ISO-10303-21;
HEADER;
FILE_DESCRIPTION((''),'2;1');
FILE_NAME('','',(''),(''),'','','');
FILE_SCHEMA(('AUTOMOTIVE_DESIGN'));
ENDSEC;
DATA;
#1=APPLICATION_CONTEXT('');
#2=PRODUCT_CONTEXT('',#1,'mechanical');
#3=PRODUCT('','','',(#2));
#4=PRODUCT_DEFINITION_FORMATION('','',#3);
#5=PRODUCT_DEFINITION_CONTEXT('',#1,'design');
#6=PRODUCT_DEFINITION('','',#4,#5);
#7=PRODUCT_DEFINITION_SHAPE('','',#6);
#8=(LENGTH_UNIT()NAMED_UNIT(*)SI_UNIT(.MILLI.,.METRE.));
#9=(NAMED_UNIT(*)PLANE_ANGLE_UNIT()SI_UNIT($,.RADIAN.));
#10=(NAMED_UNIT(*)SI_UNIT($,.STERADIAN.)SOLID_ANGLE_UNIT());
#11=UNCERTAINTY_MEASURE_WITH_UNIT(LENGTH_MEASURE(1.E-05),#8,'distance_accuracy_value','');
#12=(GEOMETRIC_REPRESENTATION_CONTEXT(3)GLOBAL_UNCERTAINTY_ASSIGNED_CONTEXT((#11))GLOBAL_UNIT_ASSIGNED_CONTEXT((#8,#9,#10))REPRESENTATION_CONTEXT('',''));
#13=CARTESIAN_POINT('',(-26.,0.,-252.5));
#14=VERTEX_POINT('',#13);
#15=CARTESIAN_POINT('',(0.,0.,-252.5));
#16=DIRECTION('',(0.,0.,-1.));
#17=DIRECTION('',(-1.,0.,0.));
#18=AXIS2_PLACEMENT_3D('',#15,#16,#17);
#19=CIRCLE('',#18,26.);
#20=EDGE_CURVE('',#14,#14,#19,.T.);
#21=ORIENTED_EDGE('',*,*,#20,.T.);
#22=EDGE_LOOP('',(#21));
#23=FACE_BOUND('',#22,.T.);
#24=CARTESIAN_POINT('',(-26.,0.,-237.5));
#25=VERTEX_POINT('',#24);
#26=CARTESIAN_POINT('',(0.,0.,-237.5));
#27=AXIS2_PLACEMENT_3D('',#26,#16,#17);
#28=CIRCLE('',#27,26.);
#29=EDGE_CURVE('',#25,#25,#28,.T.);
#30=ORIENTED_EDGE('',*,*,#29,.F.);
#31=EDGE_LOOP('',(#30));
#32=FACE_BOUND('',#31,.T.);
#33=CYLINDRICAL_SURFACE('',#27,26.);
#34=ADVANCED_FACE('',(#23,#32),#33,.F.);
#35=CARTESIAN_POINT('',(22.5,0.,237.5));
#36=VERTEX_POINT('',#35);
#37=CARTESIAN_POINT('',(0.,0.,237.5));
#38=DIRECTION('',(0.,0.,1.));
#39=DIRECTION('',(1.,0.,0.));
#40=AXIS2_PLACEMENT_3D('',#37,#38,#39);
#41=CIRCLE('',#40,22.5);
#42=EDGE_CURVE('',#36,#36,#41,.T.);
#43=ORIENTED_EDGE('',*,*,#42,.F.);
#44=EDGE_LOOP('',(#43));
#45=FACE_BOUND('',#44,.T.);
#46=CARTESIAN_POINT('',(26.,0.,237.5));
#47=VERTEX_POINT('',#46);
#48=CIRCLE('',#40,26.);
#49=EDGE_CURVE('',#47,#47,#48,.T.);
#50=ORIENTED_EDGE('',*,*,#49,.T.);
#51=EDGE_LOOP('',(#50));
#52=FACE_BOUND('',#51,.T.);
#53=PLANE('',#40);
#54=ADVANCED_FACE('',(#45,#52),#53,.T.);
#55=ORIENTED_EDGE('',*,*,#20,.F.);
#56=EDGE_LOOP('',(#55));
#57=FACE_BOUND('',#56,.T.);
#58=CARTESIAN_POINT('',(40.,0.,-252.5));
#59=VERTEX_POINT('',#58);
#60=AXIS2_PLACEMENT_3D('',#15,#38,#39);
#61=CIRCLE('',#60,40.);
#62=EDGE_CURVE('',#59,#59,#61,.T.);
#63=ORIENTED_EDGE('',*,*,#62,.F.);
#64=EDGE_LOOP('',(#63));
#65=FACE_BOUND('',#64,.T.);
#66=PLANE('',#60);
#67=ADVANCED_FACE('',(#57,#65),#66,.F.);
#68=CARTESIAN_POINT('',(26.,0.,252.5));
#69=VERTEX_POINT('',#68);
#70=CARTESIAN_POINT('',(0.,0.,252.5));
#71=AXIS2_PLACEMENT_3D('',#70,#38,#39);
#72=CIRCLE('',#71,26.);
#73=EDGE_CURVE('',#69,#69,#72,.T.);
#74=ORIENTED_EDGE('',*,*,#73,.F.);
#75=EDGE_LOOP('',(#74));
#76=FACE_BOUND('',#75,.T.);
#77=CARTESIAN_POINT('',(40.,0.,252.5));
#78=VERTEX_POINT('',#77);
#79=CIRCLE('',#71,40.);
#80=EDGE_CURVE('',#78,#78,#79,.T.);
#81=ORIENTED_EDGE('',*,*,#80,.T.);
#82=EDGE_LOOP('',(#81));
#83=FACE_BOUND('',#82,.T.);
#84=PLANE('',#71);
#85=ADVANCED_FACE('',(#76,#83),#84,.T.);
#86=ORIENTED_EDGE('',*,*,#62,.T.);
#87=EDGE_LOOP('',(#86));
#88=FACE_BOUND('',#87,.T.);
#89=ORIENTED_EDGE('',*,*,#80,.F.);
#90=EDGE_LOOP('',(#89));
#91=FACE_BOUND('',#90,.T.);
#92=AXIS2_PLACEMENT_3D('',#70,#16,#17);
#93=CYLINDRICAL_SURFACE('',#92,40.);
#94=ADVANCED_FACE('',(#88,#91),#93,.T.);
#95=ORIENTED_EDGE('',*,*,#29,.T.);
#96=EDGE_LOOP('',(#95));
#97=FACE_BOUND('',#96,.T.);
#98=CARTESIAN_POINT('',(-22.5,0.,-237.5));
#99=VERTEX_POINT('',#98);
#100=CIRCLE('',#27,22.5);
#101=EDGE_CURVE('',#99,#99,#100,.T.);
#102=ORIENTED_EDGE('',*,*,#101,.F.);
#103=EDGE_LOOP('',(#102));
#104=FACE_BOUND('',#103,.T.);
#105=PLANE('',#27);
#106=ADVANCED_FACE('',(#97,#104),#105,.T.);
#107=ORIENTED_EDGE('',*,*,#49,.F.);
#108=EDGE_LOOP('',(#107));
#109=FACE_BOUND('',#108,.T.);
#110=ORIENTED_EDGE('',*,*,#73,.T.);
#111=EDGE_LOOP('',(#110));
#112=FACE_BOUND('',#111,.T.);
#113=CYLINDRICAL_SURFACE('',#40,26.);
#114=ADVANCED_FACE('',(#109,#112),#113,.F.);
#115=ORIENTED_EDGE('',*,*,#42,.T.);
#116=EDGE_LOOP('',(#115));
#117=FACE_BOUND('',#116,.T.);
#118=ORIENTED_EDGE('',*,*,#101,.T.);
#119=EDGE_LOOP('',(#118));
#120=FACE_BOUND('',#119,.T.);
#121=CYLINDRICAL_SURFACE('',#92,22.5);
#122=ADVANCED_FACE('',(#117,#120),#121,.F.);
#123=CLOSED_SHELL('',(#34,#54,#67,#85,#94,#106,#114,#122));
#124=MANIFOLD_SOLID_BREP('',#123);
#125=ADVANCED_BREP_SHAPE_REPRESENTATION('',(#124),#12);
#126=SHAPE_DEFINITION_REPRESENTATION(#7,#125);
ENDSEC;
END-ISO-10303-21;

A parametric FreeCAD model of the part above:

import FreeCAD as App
import Part
import Sketcher
from FreeCAD import Vector

doc = App.newDocument("Part")
body = doc.addObject("PartDesign::Body", "Body")

# Sketch on XY plane
sketch1 = doc.addObject("Sketcher::SketchObject", "Sketch")
body.addObject(sketch1)
sketch1.AttachmentSupport = (doc.XY_Plane, [""])
sketch1.MapMode = "FlatFace"
sketch1.addGeometry([
    Part.Circle(Vector(0, 0, 0), Vector(0, 0, 1), 40),
    Part.Circle(Vector(0, 0, 0), Vector(0, 0, 1), 22),
], False)
sketch1.addConstraint([
    Sketcher.Constraint("Coincident", 0, 3, -1, 1),
    Sketcher.Constraint("Coincident", 1, 3, -1, 1),
    Sketcher.Constraint("Diameter", 0, 80.0),
    Sketcher.Constraint("Diameter", 1, 45.0),
])
pad1 = doc.addObject("PartDesign::Pad", "Pad")
body.addObject(pad1)
pad1.Profile = sketch1
pad1.Length = 505
pad1.Midplane = True

# Sketch on XY plane
sketch2 = doc.addObject("Sketcher::SketchObject", "Sketch001")
body.addObject(sketch2)
sketch2.AttachmentSupport = (doc.XY_Plane, [""])
sketch2.MapMode = "FlatFace"
sketch2.AttachmentOffset = App.Placement(Vector(0, 0, 237.5), App.Rotation())
sketch2.addGeometry([
    Part.Circle(Vector(0, 0, 0), Vector(0, 0, 1), 26),
    Part.Circle(Vector(0, 0, 0), Vector(0, 0, 1), 22),
], False)
sketch2.addConstraint([
    Sketcher.Constraint("Coincident", 0, 3, -1, 1),
    Sketcher.Constraint("Coincident", 1, 3, -1, 1),
    Sketcher.Constraint("Diameter", 0, 52.0),
    Sketcher.Constraint("Diameter", 1, 45.0),
])
pocket1 = doc.addObject("PartDesign::Pocket", "Pocket")
body.addObject(pocket1)
pocket1.Profile = sketch2
pocket1.Length = 15
pocket1.Reversed = True

# Sketch on XY plane
sketch3 = doc.addObject("Sketcher::SketchObject", "Sketch002")
body.addObject(sketch3)
sketch3.AttachmentSupport = (doc.XY_Plane, [""])
sketch3.MapMode = "FlatFace"
sketch3.AttachmentOffset = App.Placement(Vector(0, 0, -252.5), App.Rotation())
sketch3.addGeometry([
    Part.Circle(Vector(0, 0, 0), Vector(0, 0, 1), 26),
    Part.Circle(Vector(0, 0, 0), Vector(0, 0, 1), 22),
], False)
sketch3.addConstraint([
    Sketcher.Constraint("Coincident", 0, 3, -1, 1),
    Sketcher.Constraint("Coincident", 1, 3, -1, 1),
    Sketcher.Constraint("Diameter", 0, 52.0),
    Sketcher.Constraint("Diameter", 1, 45.0),
])
pocket2 = doc.addObject("PartDesign::Pocket", "Pocket001")
body.addObject(pocket2)
pocket2.Profile = sketch3
pocket2.Length = 15
pocket2.Reversed = True

doc.recompute()
